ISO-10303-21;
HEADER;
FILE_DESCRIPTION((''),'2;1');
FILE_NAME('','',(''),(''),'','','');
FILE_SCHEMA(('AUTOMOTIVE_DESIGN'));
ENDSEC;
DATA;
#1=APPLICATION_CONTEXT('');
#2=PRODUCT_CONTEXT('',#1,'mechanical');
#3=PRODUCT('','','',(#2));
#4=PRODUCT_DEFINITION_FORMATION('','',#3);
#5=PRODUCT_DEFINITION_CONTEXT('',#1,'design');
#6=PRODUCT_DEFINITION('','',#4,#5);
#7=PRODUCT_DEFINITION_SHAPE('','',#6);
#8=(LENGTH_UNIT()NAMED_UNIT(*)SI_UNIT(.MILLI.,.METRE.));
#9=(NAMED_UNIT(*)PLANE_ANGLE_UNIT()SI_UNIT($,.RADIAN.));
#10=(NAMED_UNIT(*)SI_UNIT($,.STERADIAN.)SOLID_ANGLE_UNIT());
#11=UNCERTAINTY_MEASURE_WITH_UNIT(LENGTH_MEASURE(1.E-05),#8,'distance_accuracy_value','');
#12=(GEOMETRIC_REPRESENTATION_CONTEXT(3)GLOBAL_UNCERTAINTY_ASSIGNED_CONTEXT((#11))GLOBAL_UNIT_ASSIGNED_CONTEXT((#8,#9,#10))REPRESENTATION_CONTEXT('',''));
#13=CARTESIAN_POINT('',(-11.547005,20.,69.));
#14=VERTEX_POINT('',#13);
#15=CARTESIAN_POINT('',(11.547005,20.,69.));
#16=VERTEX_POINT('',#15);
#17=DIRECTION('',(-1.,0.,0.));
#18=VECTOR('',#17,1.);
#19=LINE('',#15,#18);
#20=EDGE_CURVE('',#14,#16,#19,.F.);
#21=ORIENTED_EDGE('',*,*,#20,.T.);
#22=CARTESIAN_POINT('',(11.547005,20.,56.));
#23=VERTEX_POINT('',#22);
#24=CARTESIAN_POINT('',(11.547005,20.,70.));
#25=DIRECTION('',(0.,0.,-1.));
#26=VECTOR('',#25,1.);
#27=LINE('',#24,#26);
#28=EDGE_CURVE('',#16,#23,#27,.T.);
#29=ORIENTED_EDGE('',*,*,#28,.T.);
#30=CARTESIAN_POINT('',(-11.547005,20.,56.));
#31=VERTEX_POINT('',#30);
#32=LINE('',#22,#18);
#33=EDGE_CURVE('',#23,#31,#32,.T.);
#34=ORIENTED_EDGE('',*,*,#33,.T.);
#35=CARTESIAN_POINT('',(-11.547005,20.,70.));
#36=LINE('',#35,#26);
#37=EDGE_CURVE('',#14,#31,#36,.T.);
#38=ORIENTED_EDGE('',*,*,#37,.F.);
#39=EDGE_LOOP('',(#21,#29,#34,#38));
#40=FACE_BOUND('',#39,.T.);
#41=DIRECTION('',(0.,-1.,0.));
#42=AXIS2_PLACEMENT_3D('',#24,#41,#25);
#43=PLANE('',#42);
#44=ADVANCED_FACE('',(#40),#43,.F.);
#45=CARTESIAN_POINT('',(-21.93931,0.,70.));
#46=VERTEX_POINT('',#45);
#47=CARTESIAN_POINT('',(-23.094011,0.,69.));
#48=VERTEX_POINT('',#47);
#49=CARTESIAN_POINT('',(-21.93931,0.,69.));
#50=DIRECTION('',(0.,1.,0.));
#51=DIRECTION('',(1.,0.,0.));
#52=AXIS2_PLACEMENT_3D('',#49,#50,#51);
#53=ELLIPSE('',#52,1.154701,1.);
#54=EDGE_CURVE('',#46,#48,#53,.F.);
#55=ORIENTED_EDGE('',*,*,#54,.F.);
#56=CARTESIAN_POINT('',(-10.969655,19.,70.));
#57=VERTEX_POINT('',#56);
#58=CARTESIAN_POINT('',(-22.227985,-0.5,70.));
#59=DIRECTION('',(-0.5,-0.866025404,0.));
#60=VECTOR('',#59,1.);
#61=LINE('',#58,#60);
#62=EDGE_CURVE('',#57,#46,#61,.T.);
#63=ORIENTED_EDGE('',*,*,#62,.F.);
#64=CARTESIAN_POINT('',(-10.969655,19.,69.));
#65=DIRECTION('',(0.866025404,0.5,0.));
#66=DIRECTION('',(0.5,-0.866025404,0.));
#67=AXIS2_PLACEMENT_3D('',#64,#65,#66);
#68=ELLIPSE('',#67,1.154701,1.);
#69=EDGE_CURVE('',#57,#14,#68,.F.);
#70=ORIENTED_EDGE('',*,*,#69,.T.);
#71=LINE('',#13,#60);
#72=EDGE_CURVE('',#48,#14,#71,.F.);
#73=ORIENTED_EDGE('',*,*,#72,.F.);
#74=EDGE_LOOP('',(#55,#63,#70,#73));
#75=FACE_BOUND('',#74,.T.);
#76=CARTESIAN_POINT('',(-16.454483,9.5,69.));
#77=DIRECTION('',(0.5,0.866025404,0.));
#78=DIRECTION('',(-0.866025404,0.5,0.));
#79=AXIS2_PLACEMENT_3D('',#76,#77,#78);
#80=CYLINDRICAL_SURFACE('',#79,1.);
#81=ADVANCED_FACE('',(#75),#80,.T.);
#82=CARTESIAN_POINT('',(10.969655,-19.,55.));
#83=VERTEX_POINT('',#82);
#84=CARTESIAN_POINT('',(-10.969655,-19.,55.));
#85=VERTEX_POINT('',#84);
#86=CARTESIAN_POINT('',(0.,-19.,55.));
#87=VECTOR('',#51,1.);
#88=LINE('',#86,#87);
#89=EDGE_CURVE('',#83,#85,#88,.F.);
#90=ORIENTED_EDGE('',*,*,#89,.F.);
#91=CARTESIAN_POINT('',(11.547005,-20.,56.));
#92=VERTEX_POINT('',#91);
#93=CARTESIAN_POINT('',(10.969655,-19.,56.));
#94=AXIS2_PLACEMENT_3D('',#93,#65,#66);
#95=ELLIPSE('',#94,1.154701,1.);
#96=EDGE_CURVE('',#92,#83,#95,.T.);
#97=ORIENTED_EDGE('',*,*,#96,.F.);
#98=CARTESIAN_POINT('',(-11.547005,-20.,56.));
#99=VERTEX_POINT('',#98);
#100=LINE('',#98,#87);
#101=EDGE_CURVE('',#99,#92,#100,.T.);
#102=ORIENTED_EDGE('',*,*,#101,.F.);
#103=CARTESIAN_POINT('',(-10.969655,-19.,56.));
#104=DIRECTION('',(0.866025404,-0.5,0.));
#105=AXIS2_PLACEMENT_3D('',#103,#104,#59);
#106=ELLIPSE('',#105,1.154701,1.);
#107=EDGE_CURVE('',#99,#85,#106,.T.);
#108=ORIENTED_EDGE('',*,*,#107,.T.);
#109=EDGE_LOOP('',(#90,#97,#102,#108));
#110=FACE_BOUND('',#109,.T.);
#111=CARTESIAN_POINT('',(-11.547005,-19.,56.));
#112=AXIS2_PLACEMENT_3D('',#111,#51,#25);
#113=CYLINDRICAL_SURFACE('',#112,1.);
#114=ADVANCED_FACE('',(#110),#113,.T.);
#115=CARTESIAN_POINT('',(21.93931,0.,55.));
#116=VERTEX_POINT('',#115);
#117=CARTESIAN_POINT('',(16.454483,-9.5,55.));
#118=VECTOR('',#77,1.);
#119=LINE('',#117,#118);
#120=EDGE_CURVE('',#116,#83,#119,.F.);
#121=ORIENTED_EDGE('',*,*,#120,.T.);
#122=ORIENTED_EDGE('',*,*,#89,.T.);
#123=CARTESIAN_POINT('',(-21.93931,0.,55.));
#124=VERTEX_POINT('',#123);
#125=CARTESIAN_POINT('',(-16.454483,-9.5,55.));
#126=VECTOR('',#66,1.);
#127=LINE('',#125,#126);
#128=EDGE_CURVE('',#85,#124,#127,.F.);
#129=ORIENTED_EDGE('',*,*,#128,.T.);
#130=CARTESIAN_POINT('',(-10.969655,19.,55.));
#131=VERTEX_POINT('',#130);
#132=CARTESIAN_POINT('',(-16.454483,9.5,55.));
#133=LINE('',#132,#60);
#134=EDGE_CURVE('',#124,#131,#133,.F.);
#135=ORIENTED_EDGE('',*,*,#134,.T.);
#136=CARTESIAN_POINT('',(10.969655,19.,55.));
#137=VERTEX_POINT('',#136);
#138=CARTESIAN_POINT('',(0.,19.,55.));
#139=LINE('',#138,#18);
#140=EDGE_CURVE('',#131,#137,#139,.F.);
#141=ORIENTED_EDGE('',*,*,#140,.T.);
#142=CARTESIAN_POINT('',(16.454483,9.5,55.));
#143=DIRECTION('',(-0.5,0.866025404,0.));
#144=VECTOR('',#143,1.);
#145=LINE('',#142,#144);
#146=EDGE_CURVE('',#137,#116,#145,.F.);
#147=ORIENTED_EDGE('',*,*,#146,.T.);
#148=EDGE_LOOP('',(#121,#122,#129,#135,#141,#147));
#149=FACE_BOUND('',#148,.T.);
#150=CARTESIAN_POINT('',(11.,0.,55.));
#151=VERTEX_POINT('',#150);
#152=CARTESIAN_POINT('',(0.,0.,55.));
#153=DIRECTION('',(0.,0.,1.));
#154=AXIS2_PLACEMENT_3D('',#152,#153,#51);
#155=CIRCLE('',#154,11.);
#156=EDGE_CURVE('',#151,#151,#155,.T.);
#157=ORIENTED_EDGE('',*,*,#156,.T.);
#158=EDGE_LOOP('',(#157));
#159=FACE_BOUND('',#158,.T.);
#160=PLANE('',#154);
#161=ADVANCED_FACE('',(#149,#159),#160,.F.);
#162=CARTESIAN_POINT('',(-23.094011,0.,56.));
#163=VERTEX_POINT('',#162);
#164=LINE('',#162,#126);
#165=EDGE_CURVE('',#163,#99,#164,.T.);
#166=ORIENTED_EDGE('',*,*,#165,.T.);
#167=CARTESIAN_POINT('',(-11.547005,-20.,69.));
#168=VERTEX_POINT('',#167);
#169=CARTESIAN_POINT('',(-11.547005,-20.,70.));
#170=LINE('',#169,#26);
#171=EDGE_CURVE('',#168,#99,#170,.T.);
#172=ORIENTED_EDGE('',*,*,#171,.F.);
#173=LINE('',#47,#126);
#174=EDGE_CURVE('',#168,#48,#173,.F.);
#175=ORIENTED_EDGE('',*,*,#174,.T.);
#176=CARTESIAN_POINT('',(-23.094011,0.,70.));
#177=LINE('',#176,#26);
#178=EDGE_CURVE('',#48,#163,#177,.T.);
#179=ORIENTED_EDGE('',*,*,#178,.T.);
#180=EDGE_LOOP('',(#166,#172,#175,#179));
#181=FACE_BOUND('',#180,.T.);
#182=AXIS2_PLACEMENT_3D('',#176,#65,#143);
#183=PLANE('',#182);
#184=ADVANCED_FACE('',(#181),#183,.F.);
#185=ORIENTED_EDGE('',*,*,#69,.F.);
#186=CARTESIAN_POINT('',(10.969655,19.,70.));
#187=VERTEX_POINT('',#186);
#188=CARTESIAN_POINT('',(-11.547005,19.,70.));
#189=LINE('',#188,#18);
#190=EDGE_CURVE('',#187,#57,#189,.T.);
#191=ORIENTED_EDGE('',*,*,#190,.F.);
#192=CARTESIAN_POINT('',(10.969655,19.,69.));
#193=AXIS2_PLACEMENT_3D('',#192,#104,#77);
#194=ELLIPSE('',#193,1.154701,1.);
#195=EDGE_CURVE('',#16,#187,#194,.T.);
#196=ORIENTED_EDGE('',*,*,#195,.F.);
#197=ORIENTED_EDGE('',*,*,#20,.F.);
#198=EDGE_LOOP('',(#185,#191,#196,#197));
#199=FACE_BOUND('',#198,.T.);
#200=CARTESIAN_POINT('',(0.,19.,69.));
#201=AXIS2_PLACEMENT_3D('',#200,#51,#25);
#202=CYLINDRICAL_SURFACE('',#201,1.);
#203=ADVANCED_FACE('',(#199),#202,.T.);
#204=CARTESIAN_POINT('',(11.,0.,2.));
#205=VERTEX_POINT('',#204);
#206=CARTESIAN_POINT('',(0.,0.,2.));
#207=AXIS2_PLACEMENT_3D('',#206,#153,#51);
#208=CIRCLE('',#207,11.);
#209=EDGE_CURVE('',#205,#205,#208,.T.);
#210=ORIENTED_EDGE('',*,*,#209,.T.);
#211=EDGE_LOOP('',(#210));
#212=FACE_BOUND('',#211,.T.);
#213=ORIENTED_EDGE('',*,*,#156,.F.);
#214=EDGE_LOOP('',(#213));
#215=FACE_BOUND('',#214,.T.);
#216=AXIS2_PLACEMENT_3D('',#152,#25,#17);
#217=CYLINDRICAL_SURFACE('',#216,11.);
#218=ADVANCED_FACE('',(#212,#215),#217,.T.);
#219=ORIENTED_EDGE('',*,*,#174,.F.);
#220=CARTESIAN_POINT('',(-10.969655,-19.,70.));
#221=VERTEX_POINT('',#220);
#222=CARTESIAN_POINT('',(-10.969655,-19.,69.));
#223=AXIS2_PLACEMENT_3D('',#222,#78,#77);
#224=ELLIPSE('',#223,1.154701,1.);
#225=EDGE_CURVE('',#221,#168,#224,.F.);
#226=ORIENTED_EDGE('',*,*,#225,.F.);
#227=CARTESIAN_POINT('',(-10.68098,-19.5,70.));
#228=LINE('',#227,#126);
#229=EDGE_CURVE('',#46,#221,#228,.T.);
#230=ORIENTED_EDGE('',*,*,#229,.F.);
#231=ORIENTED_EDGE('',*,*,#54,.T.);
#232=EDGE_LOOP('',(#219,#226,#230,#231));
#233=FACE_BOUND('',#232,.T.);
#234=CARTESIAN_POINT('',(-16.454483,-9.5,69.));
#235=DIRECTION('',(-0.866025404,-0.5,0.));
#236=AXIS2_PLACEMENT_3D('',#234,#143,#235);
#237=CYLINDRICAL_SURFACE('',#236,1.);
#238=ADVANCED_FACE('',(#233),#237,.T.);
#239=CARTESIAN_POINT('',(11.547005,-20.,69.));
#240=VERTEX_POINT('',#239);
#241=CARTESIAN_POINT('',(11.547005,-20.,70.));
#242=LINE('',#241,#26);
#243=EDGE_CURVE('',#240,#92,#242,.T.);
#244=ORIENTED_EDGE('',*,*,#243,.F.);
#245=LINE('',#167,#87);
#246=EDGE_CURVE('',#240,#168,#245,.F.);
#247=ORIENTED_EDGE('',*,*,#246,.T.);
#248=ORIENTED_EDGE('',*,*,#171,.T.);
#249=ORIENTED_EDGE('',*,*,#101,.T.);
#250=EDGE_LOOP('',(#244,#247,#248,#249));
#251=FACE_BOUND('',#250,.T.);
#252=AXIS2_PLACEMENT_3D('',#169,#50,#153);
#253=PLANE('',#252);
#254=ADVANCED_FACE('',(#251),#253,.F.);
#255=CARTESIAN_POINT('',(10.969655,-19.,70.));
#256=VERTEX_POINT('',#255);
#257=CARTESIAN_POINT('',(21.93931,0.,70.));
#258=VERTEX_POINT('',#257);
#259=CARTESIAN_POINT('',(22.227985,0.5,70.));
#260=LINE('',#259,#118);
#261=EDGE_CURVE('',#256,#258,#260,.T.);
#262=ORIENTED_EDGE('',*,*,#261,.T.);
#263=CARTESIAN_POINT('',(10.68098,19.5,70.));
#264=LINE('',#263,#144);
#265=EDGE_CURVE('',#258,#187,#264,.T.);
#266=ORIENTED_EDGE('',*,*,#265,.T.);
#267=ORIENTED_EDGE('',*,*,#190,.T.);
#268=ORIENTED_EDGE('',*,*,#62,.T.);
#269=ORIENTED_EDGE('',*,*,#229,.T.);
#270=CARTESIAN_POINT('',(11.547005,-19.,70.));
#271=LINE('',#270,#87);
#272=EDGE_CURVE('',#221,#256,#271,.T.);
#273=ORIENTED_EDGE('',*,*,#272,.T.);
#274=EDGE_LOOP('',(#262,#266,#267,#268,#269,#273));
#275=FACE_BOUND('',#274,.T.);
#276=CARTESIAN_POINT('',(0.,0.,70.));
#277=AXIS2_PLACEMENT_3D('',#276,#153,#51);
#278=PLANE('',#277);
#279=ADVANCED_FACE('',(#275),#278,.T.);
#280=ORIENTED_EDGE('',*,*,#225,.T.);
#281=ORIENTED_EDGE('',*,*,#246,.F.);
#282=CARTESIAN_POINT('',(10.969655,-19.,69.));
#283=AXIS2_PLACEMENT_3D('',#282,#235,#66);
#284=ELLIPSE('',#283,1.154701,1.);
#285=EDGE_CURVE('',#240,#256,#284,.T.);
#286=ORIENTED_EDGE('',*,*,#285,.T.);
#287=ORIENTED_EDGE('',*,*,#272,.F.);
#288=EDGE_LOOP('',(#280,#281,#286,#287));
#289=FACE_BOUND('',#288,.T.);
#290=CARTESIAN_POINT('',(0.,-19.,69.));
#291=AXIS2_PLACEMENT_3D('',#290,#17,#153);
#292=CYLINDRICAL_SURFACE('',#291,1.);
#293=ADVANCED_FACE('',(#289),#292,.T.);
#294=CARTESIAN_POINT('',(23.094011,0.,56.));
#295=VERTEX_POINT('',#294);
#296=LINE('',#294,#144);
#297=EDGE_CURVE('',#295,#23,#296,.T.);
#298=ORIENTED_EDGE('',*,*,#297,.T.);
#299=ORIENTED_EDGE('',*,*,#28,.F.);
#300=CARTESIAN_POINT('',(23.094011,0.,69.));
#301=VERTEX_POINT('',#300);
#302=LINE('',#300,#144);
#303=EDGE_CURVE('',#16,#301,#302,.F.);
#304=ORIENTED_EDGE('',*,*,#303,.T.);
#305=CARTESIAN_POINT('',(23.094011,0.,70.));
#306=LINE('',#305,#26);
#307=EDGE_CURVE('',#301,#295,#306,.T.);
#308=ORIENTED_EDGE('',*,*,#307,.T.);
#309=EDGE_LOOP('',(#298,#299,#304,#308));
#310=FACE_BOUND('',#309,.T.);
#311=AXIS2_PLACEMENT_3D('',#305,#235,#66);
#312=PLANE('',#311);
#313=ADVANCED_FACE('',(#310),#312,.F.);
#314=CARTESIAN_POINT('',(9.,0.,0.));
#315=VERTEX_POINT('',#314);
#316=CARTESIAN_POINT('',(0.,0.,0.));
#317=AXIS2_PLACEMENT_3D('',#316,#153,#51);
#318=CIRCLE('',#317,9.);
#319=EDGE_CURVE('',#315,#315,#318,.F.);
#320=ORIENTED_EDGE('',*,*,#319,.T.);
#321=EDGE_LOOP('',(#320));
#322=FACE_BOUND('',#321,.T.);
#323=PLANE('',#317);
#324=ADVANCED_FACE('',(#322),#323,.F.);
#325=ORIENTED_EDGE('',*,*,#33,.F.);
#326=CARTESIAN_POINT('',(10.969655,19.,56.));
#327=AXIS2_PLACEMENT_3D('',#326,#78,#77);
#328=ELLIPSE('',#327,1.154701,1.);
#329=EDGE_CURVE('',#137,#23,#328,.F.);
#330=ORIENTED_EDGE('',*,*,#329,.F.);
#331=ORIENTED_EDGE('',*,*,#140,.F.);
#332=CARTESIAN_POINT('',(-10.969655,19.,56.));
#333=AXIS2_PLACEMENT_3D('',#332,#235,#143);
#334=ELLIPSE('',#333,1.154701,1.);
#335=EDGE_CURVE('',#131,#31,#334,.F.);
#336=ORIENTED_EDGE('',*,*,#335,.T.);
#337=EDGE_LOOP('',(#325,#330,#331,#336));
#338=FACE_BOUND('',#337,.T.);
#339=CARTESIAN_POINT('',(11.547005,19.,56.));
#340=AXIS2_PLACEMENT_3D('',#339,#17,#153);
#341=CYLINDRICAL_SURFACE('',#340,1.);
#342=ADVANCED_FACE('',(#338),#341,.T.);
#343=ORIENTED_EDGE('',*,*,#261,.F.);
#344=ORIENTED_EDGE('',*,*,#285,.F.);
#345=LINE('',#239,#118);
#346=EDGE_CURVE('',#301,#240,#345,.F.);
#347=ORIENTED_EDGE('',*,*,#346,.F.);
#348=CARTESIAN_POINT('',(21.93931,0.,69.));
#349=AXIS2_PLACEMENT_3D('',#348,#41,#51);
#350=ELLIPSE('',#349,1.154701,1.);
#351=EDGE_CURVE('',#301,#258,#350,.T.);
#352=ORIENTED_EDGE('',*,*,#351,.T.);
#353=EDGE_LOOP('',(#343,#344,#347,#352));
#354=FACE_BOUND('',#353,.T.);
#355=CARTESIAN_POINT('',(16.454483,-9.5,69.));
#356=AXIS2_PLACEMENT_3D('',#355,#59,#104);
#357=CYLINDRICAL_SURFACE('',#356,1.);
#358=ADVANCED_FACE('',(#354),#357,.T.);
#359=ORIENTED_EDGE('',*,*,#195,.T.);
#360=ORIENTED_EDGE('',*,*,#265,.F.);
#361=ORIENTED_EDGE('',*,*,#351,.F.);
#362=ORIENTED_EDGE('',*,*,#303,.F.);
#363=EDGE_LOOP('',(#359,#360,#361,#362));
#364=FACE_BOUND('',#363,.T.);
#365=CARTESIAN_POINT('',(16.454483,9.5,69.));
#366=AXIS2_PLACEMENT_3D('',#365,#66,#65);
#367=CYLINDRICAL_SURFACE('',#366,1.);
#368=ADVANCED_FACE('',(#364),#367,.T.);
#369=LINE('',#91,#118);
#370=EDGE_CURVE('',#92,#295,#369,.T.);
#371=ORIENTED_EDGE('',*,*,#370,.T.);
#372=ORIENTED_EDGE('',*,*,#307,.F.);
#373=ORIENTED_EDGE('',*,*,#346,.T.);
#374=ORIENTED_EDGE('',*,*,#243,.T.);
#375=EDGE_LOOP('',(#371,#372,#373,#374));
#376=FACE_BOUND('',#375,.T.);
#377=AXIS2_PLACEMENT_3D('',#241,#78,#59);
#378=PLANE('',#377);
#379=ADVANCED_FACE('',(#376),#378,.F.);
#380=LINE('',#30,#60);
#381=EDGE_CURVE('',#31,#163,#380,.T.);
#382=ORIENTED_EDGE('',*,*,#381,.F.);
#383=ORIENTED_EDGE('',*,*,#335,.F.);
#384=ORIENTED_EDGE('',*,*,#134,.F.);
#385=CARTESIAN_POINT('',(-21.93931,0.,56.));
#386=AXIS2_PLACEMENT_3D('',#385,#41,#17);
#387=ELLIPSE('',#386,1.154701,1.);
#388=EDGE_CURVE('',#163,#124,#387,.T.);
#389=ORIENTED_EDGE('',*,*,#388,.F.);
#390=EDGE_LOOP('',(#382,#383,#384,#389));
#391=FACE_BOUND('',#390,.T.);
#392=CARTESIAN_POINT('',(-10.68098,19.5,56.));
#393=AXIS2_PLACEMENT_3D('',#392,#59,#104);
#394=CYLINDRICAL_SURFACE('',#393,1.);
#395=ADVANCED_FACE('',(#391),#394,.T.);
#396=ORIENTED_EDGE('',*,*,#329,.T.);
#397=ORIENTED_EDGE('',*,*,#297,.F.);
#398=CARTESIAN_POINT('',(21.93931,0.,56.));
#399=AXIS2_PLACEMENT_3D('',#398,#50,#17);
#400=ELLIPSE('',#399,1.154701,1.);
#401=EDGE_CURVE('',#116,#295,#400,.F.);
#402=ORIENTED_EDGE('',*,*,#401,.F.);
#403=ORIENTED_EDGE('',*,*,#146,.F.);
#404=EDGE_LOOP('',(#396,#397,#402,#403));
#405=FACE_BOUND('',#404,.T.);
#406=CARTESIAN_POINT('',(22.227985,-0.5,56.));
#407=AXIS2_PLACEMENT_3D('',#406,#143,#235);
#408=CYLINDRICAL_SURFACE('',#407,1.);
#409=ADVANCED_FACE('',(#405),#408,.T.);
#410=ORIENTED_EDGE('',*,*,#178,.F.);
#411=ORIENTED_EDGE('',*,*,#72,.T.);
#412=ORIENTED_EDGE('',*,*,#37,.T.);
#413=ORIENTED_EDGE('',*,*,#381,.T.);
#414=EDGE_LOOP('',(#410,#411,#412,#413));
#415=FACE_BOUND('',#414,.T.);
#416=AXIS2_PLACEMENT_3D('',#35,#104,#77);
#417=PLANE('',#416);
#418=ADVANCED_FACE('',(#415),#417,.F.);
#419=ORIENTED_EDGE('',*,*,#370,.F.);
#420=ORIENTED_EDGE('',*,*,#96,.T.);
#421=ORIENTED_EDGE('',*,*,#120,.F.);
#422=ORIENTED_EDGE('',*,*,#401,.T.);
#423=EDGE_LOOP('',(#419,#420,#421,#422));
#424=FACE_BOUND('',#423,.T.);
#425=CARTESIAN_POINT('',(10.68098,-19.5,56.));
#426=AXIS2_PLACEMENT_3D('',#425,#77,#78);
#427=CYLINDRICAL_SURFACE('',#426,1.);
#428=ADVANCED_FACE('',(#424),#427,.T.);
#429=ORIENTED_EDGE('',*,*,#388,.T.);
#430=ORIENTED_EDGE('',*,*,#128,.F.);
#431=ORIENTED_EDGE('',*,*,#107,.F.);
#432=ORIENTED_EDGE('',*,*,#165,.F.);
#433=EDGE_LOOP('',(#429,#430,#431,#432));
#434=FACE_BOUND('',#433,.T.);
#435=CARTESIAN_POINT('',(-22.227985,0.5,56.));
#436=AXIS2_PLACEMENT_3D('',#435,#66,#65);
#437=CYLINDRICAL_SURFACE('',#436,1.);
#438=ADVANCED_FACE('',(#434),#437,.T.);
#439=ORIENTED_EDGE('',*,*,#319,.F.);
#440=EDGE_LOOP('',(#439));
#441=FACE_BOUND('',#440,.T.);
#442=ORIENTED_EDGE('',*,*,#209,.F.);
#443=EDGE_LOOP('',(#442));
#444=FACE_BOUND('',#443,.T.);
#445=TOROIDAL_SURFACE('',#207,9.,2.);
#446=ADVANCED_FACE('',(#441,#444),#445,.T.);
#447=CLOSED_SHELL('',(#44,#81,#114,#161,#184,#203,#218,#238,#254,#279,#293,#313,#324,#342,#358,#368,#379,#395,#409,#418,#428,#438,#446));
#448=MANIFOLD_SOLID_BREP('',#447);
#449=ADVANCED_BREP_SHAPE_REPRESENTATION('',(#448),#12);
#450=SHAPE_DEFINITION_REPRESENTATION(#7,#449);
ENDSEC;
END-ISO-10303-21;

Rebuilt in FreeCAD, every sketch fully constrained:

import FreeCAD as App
import Part
import Sketcher
Q = App.Units.Quantity


def edges_at(feature, points):
    """Names of the edges that pass closest to the given points."""
    edges = feature.Shape.Edges
    near = lambda p: min(range(len(edges)), key=lambda i: edges[i].distToShape(Part.Vertex(*p))[0])
    return sorted({f"Edge{near(p) + 1}" for p in points})


def add_polygon(sketch, points):
    """Adds a closed chain of lines whose ends are joined by coincident constraints."""
    first, n = sketch.GeometryCount, len(points)
    for a, b in zip(points, points[1:] + points[:1]):
        sketch.addGeometry(Part.LineSegment(App.Vector(*a, 0), App.Vector(*b, 0)), False)
    for i in range(n):
        sketch.addConstraint(Sketcher.Constraint("Coincident", first + i, 2, first + (i + 1) % n, 1))

doc = App.newDocument("Part")
body = doc.addObject("PartDesign::Body", "Body")

# Sketch on XY plane
sketch1 = body.newObject("Sketcher::SketchObject", "Sketch")
sketch1.AttachmentSupport = (doc.getObject("XY_Plane"), [""])
sketch1.MapMode = "FlatFace"
sketch1.addGeometry(Part.Circle(App.Vector(0, 0, 0), App.Vector(0, 0, 1), 11), False)
sketch1.addConstraint([
    Sketcher.Constraint("Coincident", 0, 3, -1, 1),
    Sketcher.Constraint("Diameter", 0, 22.0),
])
pad1 = body.newObject("PartDesign::Pad", "Pad")
pad1.Profile = sketch1
pad1.Length = 55

# Sketch on XY plane
sketch2 = body.newObject("Sketcher::SketchObject", "Sketch001")
sketch2.AttachmentSupport = (doc.getObject("XY_Plane"), [""])
sketch2.MapMode = "FlatFace"
sketch2.AttachmentOffset = App.Placement(App.Vector(0, 0, 55), App.Rotation())
add_polygon(sketch2, [(11.547005, -20), (23.094011, 0), (11.547005, 20), (-11.547005, 20), (-23.094011, 0), (-11.547005, -20)])  # lines 0-5
sketch2.addConstraint([
    Sketcher.Constraint("Horizontal", 2),
    Sketcher.Constraint("Horizontal", 5),
    Sketcher.Constraint("Symmetric", 0, 2, 3, 2, -1, 1),
    Sketcher.Constraint("Symmetric", 1, 2, 4, 2, -1, 1),
    Sketcher.Constraint("PointOnObject", 0, 2, -1),
    Sketcher.Constraint("Parallel", 0, 3),
    Sketcher.Constraint("Vertical", 2, 2, 4, 2),
    Sketcher.Constraint("Angle", 0, Q("60 deg")),
    Sketcher.Constraint("DistanceY", -1, 1, 1, 2, 20.0),
    Sketcher.Constraint("DistanceX", 2, 2, 2, 1, 23.094011),
])
pad2 = body.newObject("PartDesign::Pad", "Pad001")
pad2.Profile = sketch2
pad2.Length = 15
doc.recompute()

fillet = body.newObject("PartDesign::Fillet", "Fillet")
fillet.Base = (pad2, edges_at(pad2, [
    (0, -20, 55),
    (17.321, -10, 55),
    (17.321, 10, 55),
    (0, 20, 55),
    (-17.321, 10, 55),
    (-17.321, -10, 55),
    (0, -20, 70),
    (17.321, -10, 70),
    (17.321, 10, 70),
    (0, 20, 70),
    (-17.321, 10, 70),
    (-17.321, -10, 70),
]))
fillet.Radius = 1
doc.recompute()

fillet2 = body.newObject("PartDesign::Fillet", "Fillet001")
fillet2.Base = (fillet, edges_at(fillet, [(-11, 0, 0)]))
fillet2.Radius = 2

doc.recompute()
